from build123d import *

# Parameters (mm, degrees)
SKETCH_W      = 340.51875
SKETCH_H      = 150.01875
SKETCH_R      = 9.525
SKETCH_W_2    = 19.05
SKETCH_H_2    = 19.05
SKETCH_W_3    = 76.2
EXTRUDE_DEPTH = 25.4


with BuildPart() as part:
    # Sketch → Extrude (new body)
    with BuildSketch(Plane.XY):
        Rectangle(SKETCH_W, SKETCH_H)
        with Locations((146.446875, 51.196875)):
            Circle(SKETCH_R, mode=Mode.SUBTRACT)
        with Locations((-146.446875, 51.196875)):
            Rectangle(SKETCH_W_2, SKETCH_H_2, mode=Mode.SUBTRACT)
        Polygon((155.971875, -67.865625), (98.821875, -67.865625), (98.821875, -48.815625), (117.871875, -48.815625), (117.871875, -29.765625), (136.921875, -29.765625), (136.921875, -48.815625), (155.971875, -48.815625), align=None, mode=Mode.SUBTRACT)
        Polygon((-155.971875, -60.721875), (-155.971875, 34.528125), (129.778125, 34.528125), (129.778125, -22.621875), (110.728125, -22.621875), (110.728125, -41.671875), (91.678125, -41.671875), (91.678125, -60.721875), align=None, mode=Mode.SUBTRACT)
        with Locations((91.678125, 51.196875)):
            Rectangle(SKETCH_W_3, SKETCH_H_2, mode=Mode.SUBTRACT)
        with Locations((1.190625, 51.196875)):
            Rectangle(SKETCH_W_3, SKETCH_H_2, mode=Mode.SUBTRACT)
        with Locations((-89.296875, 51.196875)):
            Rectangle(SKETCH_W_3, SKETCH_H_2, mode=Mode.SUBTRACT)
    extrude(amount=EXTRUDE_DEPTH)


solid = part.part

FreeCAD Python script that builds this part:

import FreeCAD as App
import Part
import Sketcher
from FreeCAD import Vector
Q = App.Units.Quantity

doc = App.newDocument("Part")
body = doc.addObject("PartDesign::Body", "Body")

sketch1 = body.newObject("Sketcher::SketchObject", "Sketch")
sketch1.AttachmentSupport = (doc.getObject("XY_Plane"), [""])
sketch1.MapMode = "FlatFace"
sketch1.addGeometry([
    Part.LineSegment(Vector(-170, 75, 0), Vector(-170, -75, 0)),
    Part.LineSegment(Vector(-170, -75, 0), Vector(170, -75, 0)),
    Part.LineSegment(Vector(170, -75, 0), Vector(170, 75, 0)),
    Part.LineSegment(Vector(170, 75, 0), Vector(-170, 75, 0)),
    Part.LineSegment(Vector(92, -61, 0), Vector(-156, -61, 0)),
    Part.LineSegment(Vector(-156, -61, 0), Vector(-156, 35, 0)),
    Part.LineSegment(Vector(-156, 35, 0), Vector(130, 35, 0)),
    Part.LineSegment(Vector(130, 35, 0), Vector(130, -23, 0)),
    Part.LineSegment(Vector(130, -23, 0), Vector(111, -23, 0)),
    Part.LineSegment(Vector(111, -23, 0), Vector(111, -42, 0)),
    Part.LineSegment(Vector(111, -42, 0), Vector(92, -42, 0)),
    Part.LineSegment(Vector(92, -42, 0), Vector(92, -61, 0)),
    Part.LineSegment(Vector(156, -49, 0), Vector(156, -68, 0)),
    Part.LineSegment(Vector(156, -68, 0), Vector(99, -68, 0)),
    Part.LineSegment(Vector(99, -68, 0), Vector(99, -49, 0)),
    Part.LineSegment(Vector(99, -49, 0), Vector(118, -49, 0)),
    Part.LineSegment(Vector(118, -49, 0), Vector(118, -30, 0)),
    Part.LineSegment(Vector(118, -30, 0), Vector(137, -30, 0)),
    Part.LineSegment(Vector(137, -30, 0), Vector(137, -49, 0)),
    Part.LineSegment(Vector(137, -49, 0), Vector(156, -49, 0)),
    Part.LineSegment(Vector(-137, 42, 0), Vector(-156, 42, 0)),
    Part.LineSegment(Vector(-156, 42, 0), Vector(-156, 61, 0)),
    Part.LineSegment(Vector(-156, 61, 0), Vector(-137, 61, 0)),
    Part.LineSegment(Vector(-137, 61, 0), Vector(-137, 42, 0)),
    Part.LineSegment(Vector(-51, 42, 0), Vector(-127, 42, 0)),
    Part.LineSegment(Vector(-127, 42, 0), Vector(-127, 61, 0)),
    Part.LineSegment(Vector(-127, 61, 0), Vector(-51, 61, 0)),
    Part.LineSegment(Vector(-51, 61, 0), Vector(-51, 42, 0)),
    Part.LineSegment(Vector(39, 42, 0), Vector(-37, 42, 0)),
    Part.LineSegment(Vector(-37, 42, 0), Vector(-37, 61, 0)),
    Part.LineSegment(Vector(-37, 61, 0), Vector(39, 61, 0)),
    Part.LineSegment(Vector(39, 61, 0), Vector(39, 42, 0)),
    Part.LineSegment(Vector(130, 42, 0), Vector(54, 42, 0)),
    Part.LineSegment(Vector(54, 42, 0), Vector(54, 61, 0)),
    Part.LineSegment(Vector(54, 61, 0), Vector(130, 61, 0)),
    Part.LineSegment(Vector(130, 61, 0), Vector(130, 42, 0)),
    Part.Circle(Vector(146, 51, 0), Vector(0, 0, 1), 10),
], False)
sketch1.addConstraint([
    Sketcher.Constraint("Coincident", 0, 2, 1, 1),
    Sketcher.Constraint("Coincident", 1, 2, 2, 1),
    Sketcher.Constraint("Coincident", 2, 2, 3, 1),
    Sketcher.Constraint("Coincident", 3, 2, 0, 1),
    Sketcher.Constraint("Coincident", 4, 2, 5, 1),
    Sketcher.Constraint("Coincident", 5, 2, 6, 1),
    Sketcher.Constraint("Coincident", 6, 2, 7, 1),
    Sketcher.Constraint("Coincident", 7, 2, 8, 1),
    Sketcher.Constraint("Coincident", 8, 2, 9, 1),
    Sketcher.Constraint("Coincident", 9, 2, 10, 1),
    Sketcher.Constraint("Coincident", 10, 2, 11, 1),
    Sketcher.Constraint("Coincident", 11, 2, 4, 1),
    Sketcher.Constraint("Coincident", 12, 2, 13, 1),
    Sketcher.Constraint("Coincident", 13, 2, 14, 1),
    Sketcher.Constraint("Coincident", 14, 2, 15, 1),
    Sketcher.Constraint("Coincident", 15, 2, 16, 1),
    Sketcher.Constraint("Coincident", 16, 2, 17, 1),
    Sketcher.Constraint("Coincident", 17, 2, 18, 1),
    Sketcher.Constraint("Coincident", 18, 2, 19, 1),
    Sketcher.Constraint("Coincident", 19, 2, 12, 1),
    Sketcher.Constraint("Coincident", 20, 2, 21, 1),
    Sketcher.Constraint("Coincident", 21, 2, 22, 1),
    Sketcher.Constraint("Coincident", 22, 2, 23, 1),
    Sketcher.Constraint("Coincident", 23, 2, 20, 1),
    Sketcher.Constraint("Coincident", 24, 2, 25, 1),
    Sketcher.Constraint("Coincident", 25, 2, 26, 1),
    Sketcher.Constraint("Coincident", 26, 2, 27, 1),
    Sketcher.Constraint("Coincident", 27, 2, 24, 1),
    Sketcher.Constraint("Coincident", 28, 2, 29, 1),
    Sketcher.Constraint("Coincident", 29, 2, 30, 1),
    Sketcher.Constraint("Coincident", 30, 2, 31, 1),
    Sketcher.Constraint("Coincident", 31, 2, 28, 1),
    Sketcher.Constraint("Coincident", 32, 2, 33, 1),
    Sketcher.Constraint("Coincident", 33, 2, 34, 1),
    Sketcher.Constraint("Coincident", 34, 2, 35, 1),
    Sketcher.Constraint("Coincident", 35, 2, 32, 1),
    Sketcher.Constraint("Vertical", 0),
    Sketcher.Constraint("Horizontal", 1),
    Sketcher.Constraint("Vertical", 2),
    Sketcher.Constraint("Horizontal", 3),
    Sketcher.Constraint("Horizontal", 4),
    Sketcher.Constraint("Vertical", 5),
    Sketcher.Constraint("Horizontal", 6),
    Sketcher.Constraint("Vertical", 7),
    Sketcher.Constraint("Horizontal", 8),
    Sketcher.Constraint("Vertical", 9),
    Sketcher.Constraint("Horizontal", 10),
    Sketcher.Constraint("Vertical", 11),
    Sketcher.Constraint("Vertical", 12),
    Sketcher.Constraint("Horizontal", 13),
    Sketcher.Constraint("Vertical", 14),
    Sketcher.Constraint("Horizontal", 15),
    Sketcher.Constraint("Vertical", 16),
    Sketcher.Constraint("Horizontal", 17),
    Sketcher.Constraint("Vertical", 18),
    Sketcher.Constraint("Horizontal", 19),
    Sketcher.Constraint("Horizontal", 20),
    Sketcher.Constraint("Vertical", 21),
    Sketcher.Constraint("Horizontal", 22),
    Sketcher.Constraint("Vertical", 23),
    Sketcher.Constraint("Horizontal", 24),
    Sketcher.Constraint("Vertical", 25),
    Sketcher.Constraint("Horizontal", 26),
    Sketcher.Constraint("Vertical", 27),
    Sketcher.Constraint("Horizontal", 28),
    Sketcher.Constraint("Vertical", 29),
    Sketcher.Constraint("Horizontal", 30),
    Sketcher.Constraint("Vertical", 31),
    Sketcher.Constraint("Horizontal", 32),
    Sketcher.Constraint("Vertical", 33),
    Sketcher.Constraint("Horizontal", 34),
    Sketcher.Constraint("Vertical", 35),
    Sketcher.Constraint("Symmetric", 0, 2, 2, 2, -1, 1),
    Sketcher.Constraint("Symmetric", 4, 2, 21, 2, -1),
    Sketcher.Constraint("Horizontal", 15, 2, 18, 2),
    Sketcher.Constraint("Horizontal", 23, 2, 24, 2),
    Sketcher.Constraint("Horizontal", 22, 2, 25, 2),
    Sketcher.Constraint("Horizontal", 27, 2, 28, 2),
    Sketcher.Constraint("Horizontal", 26, 2, 29, 2),
    Sketcher.Constraint("Horizontal", 31, 2, 32, 2),
    Sketcher.Constraint("Horizontal", 30, 2, 33, 2),
    Sketcher.Constraint("Vertical", 7, 2, 34, 2),
    Sketcher.Constraint("Equal", 8, 10),
    Sketcher.Constraint("Equal", 10, 15),
    Sketcher.Constraint("Equal", 15, 17),
    Sketcher.Constraint("Equal", 17, 19),
    Sketcher.Constraint("Equal", 19, 20),
    Sketcher.Constraint("Equal", 26, 28),
    Sketcher.Constraint("Equal", 30, 32),
    Sketcher.Constraint("Equal", 13, 7),
    Sketcher.Constraint("Equal", 22, 9),
    Sketcher.Constraint("Equal", 9, 11),
    Sketcher.Constraint("Equal", 11, 12),
    Sketcher.Constraint("Equal", 14, 16),
    Sketcher.Constraint("Equal", 18, 21),
    Sketcher.Constraint("Diameter", 36, Q("0.75 in")),
    Sketcher.Constraint("DistanceX", 24, 2, 24, 1, Q("3 in")),
    Sketcher.Constraint("DistanceY", 9, 2, 6, 2, Q("3 in")),
    Sketcher.Constraint("DistanceX", 4, 2, 4, 1, Q("9.75 in")),
    Sketcher.Constraint("DistanceX", 1, 1, 1, 2, Q("13.40625 in")),
    Sketcher.Constraint("DistanceY", 0, 2, 0, 1, Q("5.90625 in")),
    Sketcher.Constraint("DistanceX", -1, 1, 36, 3, Q("5.765625 in")),
    Sketcher.Constraint("DistanceY", -1, 1, 36, 3, Q("2.015625 in")),
    Sketcher.Constraint("DistanceX", 4, 2, -1, 1, Q("6.140625 in")),
    Sketcher.Constraint("DistanceY", 4, 2, -1, 1, Q("2.390625 in")),
    Sketcher.Constraint("DistanceX", -1, 1, 12, 2, Q("6.140625 in")),
    Sketcher.Constraint("DistanceY", 12, 2, -1, 1, Q("2.671875 in")),
    Sketcher.Constraint("DistanceX", 24, 2, -1, 1, Q("5.015625 in")),
    Sketcher.Constraint("DistanceX", 28, 2, -1, 1, Q("1.453125 in")),
])
pad1 = body.newObject("PartDesign::Pad", "Pad")
pad1.Profile = sketch1
pad1.Length = Q("1 in")

doc.recompute()
